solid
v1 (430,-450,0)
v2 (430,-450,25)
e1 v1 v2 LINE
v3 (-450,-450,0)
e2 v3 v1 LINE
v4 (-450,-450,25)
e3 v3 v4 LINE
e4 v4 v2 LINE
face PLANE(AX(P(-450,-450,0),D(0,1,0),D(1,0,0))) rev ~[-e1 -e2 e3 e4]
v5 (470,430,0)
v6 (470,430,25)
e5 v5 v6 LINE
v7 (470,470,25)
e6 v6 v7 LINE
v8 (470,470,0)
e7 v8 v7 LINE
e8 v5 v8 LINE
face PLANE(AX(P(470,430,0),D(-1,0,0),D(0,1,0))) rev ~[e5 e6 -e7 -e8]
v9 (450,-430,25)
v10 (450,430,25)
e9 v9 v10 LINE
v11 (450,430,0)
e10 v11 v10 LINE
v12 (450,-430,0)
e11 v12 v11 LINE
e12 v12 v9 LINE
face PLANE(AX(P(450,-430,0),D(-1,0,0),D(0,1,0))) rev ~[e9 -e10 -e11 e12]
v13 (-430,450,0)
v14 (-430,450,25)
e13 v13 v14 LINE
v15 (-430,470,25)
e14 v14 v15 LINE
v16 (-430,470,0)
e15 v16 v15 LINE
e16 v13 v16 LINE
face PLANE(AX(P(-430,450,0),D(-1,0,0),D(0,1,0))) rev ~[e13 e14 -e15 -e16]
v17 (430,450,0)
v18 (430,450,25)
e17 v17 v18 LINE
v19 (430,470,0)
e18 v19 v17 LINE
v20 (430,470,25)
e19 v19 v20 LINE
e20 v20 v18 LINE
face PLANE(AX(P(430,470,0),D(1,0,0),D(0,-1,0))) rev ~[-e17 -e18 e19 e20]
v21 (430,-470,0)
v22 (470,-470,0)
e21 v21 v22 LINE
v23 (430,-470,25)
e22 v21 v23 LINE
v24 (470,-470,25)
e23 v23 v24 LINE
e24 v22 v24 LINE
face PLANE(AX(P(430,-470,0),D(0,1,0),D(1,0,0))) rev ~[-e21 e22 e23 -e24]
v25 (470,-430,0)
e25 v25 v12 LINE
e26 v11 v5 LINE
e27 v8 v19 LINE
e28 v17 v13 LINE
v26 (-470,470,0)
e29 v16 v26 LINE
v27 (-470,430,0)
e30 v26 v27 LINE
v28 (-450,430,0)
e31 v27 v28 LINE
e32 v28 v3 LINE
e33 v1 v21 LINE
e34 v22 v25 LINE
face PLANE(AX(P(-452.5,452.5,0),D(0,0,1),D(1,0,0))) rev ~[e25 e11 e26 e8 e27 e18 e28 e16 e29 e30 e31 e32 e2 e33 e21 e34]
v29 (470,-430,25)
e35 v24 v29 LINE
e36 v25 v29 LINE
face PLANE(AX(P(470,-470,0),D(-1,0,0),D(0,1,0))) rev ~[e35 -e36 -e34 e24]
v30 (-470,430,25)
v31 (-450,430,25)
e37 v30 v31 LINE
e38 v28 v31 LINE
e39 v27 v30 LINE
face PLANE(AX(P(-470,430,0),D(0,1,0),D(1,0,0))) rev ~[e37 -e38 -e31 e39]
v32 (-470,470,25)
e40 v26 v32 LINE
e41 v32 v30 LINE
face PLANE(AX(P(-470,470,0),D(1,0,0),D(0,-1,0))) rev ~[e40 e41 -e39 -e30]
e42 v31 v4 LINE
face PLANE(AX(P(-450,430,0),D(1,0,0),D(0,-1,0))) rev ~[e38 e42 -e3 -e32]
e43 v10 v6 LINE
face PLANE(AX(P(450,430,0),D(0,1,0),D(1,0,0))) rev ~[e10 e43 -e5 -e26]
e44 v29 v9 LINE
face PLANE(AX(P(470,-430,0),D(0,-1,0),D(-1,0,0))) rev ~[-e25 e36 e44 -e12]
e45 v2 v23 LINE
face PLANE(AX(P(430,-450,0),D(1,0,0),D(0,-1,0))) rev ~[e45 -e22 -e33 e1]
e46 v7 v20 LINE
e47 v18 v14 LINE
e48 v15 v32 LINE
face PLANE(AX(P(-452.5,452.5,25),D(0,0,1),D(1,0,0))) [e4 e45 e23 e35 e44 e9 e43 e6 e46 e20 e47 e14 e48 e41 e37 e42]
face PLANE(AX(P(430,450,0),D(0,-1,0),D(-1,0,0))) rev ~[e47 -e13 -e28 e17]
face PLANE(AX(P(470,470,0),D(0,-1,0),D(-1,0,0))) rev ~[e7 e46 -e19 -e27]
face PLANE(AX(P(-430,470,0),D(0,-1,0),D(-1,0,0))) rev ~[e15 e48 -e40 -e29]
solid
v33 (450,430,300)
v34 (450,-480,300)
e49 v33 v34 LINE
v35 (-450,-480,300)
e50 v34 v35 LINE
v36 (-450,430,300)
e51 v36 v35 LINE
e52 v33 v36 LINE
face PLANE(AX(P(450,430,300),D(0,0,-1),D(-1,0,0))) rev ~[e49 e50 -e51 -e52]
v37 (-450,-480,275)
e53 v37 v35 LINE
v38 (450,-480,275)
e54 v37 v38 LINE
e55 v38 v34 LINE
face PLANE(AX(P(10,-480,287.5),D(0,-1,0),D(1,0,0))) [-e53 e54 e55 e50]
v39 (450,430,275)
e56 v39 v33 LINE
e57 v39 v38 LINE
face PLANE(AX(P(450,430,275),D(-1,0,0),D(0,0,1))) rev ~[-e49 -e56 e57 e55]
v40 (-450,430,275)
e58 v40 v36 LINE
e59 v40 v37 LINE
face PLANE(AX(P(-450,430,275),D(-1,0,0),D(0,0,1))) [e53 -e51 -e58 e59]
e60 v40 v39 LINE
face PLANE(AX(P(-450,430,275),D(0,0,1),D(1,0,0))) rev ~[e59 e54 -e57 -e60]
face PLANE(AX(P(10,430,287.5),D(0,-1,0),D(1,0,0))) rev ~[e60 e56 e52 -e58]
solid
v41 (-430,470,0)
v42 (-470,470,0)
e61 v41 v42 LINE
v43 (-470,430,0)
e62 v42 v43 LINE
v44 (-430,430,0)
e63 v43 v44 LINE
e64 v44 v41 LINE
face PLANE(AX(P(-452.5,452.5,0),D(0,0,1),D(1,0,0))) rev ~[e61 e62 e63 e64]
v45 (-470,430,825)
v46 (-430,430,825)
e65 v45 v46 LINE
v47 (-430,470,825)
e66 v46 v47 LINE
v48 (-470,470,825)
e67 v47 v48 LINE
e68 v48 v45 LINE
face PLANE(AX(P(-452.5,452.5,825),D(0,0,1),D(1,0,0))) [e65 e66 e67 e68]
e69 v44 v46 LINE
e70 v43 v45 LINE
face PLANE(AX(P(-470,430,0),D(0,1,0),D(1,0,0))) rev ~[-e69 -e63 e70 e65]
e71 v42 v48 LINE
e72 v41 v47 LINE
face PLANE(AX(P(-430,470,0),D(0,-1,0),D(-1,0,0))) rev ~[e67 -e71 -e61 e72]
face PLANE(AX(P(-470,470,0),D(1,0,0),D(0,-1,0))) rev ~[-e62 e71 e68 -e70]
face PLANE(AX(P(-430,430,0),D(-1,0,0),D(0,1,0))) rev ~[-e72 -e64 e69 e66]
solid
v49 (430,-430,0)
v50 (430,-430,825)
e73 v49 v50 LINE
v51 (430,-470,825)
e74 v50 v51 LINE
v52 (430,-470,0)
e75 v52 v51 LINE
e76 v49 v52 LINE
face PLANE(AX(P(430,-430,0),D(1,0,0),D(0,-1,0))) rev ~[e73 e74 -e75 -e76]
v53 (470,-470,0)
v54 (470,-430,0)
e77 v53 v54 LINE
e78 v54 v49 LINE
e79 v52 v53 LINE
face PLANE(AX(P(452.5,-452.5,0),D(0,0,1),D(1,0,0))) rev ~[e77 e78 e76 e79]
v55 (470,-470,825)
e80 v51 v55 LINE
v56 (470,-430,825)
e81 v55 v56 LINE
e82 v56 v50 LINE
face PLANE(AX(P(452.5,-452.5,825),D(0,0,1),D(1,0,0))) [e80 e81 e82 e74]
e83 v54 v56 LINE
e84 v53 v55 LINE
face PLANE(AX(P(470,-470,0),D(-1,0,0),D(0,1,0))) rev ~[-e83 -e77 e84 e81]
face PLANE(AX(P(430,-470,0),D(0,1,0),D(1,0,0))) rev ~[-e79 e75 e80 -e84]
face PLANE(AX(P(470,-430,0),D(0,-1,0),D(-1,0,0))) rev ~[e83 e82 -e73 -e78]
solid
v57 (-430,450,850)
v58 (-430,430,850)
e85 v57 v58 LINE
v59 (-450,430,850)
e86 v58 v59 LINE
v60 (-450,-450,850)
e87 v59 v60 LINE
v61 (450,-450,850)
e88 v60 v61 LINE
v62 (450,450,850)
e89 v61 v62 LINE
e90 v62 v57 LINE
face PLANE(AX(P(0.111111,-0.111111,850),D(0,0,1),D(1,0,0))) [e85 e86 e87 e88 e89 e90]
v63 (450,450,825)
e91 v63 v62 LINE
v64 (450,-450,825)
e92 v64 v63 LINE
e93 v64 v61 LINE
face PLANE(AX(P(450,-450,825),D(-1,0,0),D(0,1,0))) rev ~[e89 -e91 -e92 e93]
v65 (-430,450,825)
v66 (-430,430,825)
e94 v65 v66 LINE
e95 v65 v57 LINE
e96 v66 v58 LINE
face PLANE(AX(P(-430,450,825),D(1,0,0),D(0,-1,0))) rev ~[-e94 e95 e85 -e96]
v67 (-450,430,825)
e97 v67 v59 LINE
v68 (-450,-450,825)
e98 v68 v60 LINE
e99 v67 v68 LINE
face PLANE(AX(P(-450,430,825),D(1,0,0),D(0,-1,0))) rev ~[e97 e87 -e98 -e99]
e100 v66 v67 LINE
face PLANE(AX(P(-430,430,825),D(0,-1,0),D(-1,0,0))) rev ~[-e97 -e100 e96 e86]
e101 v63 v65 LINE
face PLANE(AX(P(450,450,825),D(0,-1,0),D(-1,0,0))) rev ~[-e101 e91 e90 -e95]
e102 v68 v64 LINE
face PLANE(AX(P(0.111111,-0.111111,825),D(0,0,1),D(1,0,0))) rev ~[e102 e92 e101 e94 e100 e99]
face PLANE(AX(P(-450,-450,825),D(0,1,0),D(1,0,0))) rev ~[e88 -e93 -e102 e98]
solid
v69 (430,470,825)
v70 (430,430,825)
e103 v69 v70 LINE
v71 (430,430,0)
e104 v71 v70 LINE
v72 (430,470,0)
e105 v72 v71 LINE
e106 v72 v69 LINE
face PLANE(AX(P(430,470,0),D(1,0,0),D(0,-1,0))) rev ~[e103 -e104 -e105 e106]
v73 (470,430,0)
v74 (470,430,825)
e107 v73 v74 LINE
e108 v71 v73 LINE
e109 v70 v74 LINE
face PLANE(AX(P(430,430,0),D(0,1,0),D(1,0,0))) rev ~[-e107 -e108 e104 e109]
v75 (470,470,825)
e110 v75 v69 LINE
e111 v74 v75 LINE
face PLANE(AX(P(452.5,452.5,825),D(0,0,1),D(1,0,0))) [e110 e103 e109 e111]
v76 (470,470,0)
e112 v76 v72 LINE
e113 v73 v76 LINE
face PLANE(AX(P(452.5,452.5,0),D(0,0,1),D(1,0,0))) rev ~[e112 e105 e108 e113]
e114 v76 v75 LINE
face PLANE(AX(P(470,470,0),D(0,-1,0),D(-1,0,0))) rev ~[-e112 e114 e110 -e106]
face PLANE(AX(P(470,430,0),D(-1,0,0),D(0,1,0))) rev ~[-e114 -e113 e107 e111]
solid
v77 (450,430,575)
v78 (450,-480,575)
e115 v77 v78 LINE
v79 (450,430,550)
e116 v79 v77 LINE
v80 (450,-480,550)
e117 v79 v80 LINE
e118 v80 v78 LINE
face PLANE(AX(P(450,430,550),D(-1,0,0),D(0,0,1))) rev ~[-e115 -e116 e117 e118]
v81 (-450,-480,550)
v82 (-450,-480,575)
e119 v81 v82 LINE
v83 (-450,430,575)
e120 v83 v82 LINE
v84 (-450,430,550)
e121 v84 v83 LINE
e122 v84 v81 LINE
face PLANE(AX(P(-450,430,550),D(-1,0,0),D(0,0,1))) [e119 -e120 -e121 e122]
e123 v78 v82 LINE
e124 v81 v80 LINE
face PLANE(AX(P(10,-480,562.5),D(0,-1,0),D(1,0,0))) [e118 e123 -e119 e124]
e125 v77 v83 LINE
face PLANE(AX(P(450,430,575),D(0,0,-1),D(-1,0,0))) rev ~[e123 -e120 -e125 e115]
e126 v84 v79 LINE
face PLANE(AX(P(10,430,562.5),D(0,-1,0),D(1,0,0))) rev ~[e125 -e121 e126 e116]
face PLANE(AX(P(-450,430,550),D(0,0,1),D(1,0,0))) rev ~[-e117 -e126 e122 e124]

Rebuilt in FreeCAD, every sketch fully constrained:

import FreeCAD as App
import Part
import Sketcher

V = App.Vector


def add_polygon(sketch, points):
    """Adds a closed chain of lines whose ends are joined by coincident constraints."""
    first, n = sketch.GeometryCount, len(points)
    for a, b in zip(points, points[1:] + points[:1]):
        sketch.addGeometry(Part.LineSegment(App.Vector(*a, 0), App.Vector(*b, 0)), False)
    for i in range(n):
        sketch.addConstraint(Sketcher.Constraint("Coincident", first + i, 2, first + (i + 1) % n, 1))

doc = App.newDocument("Part")
body = doc.addObject("PartDesign::Body", "Body")

# Sketch on XY plane
sketch1 = body.newObject("Sketcher::SketchObject", "Sketch")
sketch1.AttachmentSupport = (doc.getObject("XY_Plane"), [""])
sketch1.MapMode = "FlatFace"
add_polygon(sketch1, [(430, 470), (430, 430), (470, 430), (470, 470)])  # lines 0-3
sketch1.addConstraint([
    Sketcher.Constraint("Vertical", 0),
    Sketcher.Constraint("Horizontal", 1),
    Sketcher.Constraint("Vertical", 2),
    Sketcher.Constraint("Horizontal", 3),
    Sketcher.Constraint("Equal", 3, 0),
    Sketcher.Constraint("DistanceX", 1, 1, 1, 2, 40.0),
    Sketcher.Constraint("DistanceX", -1, 1, 0, 2, 430.0),
    Sketcher.Constraint("DistanceY", -1, 1, 0, 2, 430.0),
])
pad1 = body.newObject("PartDesign::Pad", "Pad")
pad1.Profile = sketch1
pad1.Length = 825
body2 = doc.addObject("PartDesign::Body", "Body001")

# Sketch on XY plane
sketch2 = body2.newObject("Sketcher::SketchObject", "Sketch001")
sketch2.AttachmentSupport = (doc.getObject("XY_Plane001"), [""])
sketch2.MapMode = "FlatFace"
add_polygon(sketch2, [(-430, 470), (-470, 470), (-470, 430), (-430, 430)])  # lines 0-3
sketch2.addConstraint([
    Sketcher.Constraint("Horizontal", 0),
    Sketcher.Constraint("Vertical", 1),
    Sketcher.Constraint("Horizontal", 2),
    Sketcher.Constraint("Vertical", 3),
    Sketcher.Constraint("Equal", 2, 1),
    Sketcher.Constraint("DistanceX", 0, 2, 0, 1, 40.0),
    Sketcher.Constraint("DistanceX", 0, 2, -1, 1, 470.0),
    Sketcher.Constraint("DistanceY", -1, 1, 0, 2, 470.0),
])
pad2 = body2.newObject("PartDesign::Pad", "Pad001")
pad2.Profile = sketch2
pad2.Length = 825
body3 = doc.addObject("PartDesign::Body", "Body002")

# Sketch on XY plane
sketch3 = body3.newObject("Sketcher::SketchObject", "Sketch002")
sketch3.AttachmentSupport = (doc.getObject("XY_Plane002"), [""])
sketch3.MapMode = "FlatFace"
add_polygon(sketch3, [(430, -470), (470, -470), (470, -430), (430, -430)])  # lines 0-3
sketch3.addConstraint([
    Sketcher.Constraint("Horizontal", 0),
    Sketcher.Constraint("Vertical", 1),
    Sketcher.Constraint("Horizontal", 2),
    Sketcher.Constraint("Vertical", 3),
    Sketcher.Constraint("Equal", 2, 1),
    Sketcher.Constraint("DistanceX", 0, 1, 0, 2, 40.0),
    Sketcher.Constraint("DistanceX", -1, 1, 0, 2, 470.0),
    Sketcher.Constraint("DistanceY", 0, 2, -1, 1, 470.0),
])
pad3 = body3.newObject("PartDesign::Pad", "Pad002")
pad3.Profile = sketch3
pad3.Length = 825
body4 = doc.addObject("PartDesign::Body", "Body003")

# Sketch on XY plane
sketch4 = body4.newObject("Sketcher::SketchObject", "Sketch003")
sketch4.AttachmentSupport = (doc.getObject("XY_Plane003"), [""])
sketch4.MapMode = "FlatFace"
add_polygon(sketch4, [(-430, 470), (-470, 470), (-470, 430), (-450, 430), (-450, -450), (430, -450), (430, -470), (470, -470), (470, -430), (450, -430), (450, 430), (470, 430), (470, 470), (430, 470), (430, 450), (-430, 450)])  # lines 0-15
sketch4.addConstraint([
    Sketcher.Constraint("Horizontal", 0),
    Sketcher.Constraint("Vertical", 1),
    Sketcher.Constraint("Horizontal", 2),
    Sketcher.Constraint("Vertical", 3),
    Sketcher.Constraint("Horizontal", 4),
    Sketcher.Constraint("Vertical", 5),
    Sketcher.Constraint("Horizontal", 6),
    Sketcher.Constraint("Vertical", 7),
    Sketcher.Constraint("Horizontal", 8),
    Sketcher.Constraint("Vertical", 9),
    Sketcher.Constraint("Horizontal", 10),
    Sketcher.Constraint("Vertical", 11),
    Sketcher.Constraint("Horizontal", 12),
    Sketcher.Constraint("Vertical", 13),
    Sketcher.Constraint("Horizontal", 14),
    Sketcher.Constraint("Vertical", 15),
    Sketcher.Constraint("Symmetric", 0, 2, 6, 2, -1, 1),
    Sketcher.Constraint("Symmetric", 2, 2, 8, 2, -1, 1),
    Sketcher.Constraint("Symmetric", 4, 2, 14, 2, -1, 1),
    Sketcher.Constraint("Symmetric", 1, 2, 10, 2, -2),
    Sketcher.Constraint("Symmetric", 12, 2, 15, 2, -2),
    Sketcher.Constraint("Equal", 12, 1),
    Sketcher.Constraint("Equal", 4, 3),
    Sketcher.Constraint("Equal", 10, 5),
    Sketcher.Constraint("DistanceX", 0, 2, 0, 1, 40.0),
    Sketcher.Constraint("DistanceX", 2, 1, 2, 2, 20.0),
    Sketcher.Constraint("DistanceX", 4, 1, 4, 2, 880.0),
])
pad4 = body4.newObject("PartDesign::Pad", "Pad003")
pad4.Profile = sketch4
pad4.Length = 25
body5 = doc.addObject("PartDesign::Body", "Body004")

# Sketch on XY plane
sketch5 = body5.newObject("Sketcher::SketchObject", "Sketch004")
sketch5.AttachmentSupport = (doc.getObject("XY_Plane004"), [""])
sketch5.MapMode = "FlatFace"
sketch5.AttachmentOffset = App.Placement(V(0, 0, 825), App.Rotation())
add_polygon(sketch5, [(450, 450), (-430, 450), (-430, 430), (-450, 430), (-450, -450), (450, -450)])  # lines 0-5
sketch5.addConstraint([
    Sketcher.Constraint("Horizontal", 0),
    Sketcher.Constraint("Vertical", 1),
    Sketcher.Constraint("Horizontal", 2),
    Sketcher.Constraint("Vertical", 3),
    Sketcher.Constraint("Horizontal", 4),
    Sketcher.Constraint("Vertical", 5),
    Sketcher.Constraint("Symmetric", 3, 2, 5, 2, -1, 1),
    Sketcher.Constraint("Equal", 2, 1),
    Sketcher.Constraint("Equal", 0, 3),
    Sketcher.Constraint("DistanceX", 0, 2, 0, 1, 880.0),
    Sketcher.Constraint("DistanceX", 2, 2, 2, 1, 20.0),
])
pad5 = body5.newObject("PartDesign::Pad", "Pad004")
pad5.Profile = sketch5
pad5.Length = 25
body6 = doc.addObject("PartDesign::Body", "Body005")

# Sketch on XZ plane
sketch6 = body6.newObject("Sketcher::SketchObject", "Sketch005")
sketch6.AttachmentSupport = (doc.getObject("XZ_Plane005"), [""])
sketch6.MapMode = "FlatFace"
sketch6.AttachmentOffset = App.Placement(V(0, 0, -430), App.Rotation())
add_polygon(sketch6, [(450, 550), (450, 575), (-450, 575), (-450, 550)])  # lines 0-3
sketch6.addConstraint([
    Sketcher.Constraint("Vertical", 0),
    Sketcher.Constraint("Horizontal", 1),
    Sketcher.Constraint("Vertical", 2),
    Sketcher.Constraint("Horizontal", 3),
    Sketcher.Constraint("DistanceX", 1, 2, 1, 1, 900.0),
    Sketcher.Constraint("DistanceY", 0, 1, 0, 2, 25.0),
    Sketcher.Constraint("DistanceX", -1, 1, 0, 2, 450.0),
    Sketcher.Constraint("DistanceY", -1, 1, 0, 2, 575.0),
])
pad6 = body6.newObject("PartDesign::Pad", "Pad005")
pad6.Profile = sketch6
pad6.Length = 910
body7 = doc.addObject("PartDesign::Body", "Body006")

# Sketch on XZ plane
sketch7 = body7.newObject("Sketcher::SketchObject", "Sketch006")
sketch7.AttachmentSupport = (doc.getObject("XZ_Plane006"), [""])
sketch7.MapMode = "FlatFace"
sketch7.AttachmentOffset = App.Placement(V(0, 0, -430), App.Rotation())
add_polygon(sketch7, [(450, 275), (450, 300), (-450, 300), (-450, 275)])  # lines 0-3
sketch7.addConstraint([
    Sketcher.Constraint("Vertical", 0),
    Sketcher.Constraint("Horizontal", 1),
    Sketcher.Constraint("Vertical", 2),
    Sketcher.Constraint("Horizontal", 3),
    Sketcher.Constraint("DistanceX", 1, 2, 1, 1, 900.0),
    Sketcher.Constraint("DistanceY", 0, 1, 0, 2, 25.0),
    Sketcher.Constraint("DistanceX", -1, 1, 0, 2, 450.0),
    Sketcher.Constraint("DistanceY", -1, 1, 0, 2, 300.0),
])
pad7 = body7.newObject("PartDesign::Pad", "Pad006")
pad7.Profile = sketch7
pad7.Length = 910

doc.recompute()
